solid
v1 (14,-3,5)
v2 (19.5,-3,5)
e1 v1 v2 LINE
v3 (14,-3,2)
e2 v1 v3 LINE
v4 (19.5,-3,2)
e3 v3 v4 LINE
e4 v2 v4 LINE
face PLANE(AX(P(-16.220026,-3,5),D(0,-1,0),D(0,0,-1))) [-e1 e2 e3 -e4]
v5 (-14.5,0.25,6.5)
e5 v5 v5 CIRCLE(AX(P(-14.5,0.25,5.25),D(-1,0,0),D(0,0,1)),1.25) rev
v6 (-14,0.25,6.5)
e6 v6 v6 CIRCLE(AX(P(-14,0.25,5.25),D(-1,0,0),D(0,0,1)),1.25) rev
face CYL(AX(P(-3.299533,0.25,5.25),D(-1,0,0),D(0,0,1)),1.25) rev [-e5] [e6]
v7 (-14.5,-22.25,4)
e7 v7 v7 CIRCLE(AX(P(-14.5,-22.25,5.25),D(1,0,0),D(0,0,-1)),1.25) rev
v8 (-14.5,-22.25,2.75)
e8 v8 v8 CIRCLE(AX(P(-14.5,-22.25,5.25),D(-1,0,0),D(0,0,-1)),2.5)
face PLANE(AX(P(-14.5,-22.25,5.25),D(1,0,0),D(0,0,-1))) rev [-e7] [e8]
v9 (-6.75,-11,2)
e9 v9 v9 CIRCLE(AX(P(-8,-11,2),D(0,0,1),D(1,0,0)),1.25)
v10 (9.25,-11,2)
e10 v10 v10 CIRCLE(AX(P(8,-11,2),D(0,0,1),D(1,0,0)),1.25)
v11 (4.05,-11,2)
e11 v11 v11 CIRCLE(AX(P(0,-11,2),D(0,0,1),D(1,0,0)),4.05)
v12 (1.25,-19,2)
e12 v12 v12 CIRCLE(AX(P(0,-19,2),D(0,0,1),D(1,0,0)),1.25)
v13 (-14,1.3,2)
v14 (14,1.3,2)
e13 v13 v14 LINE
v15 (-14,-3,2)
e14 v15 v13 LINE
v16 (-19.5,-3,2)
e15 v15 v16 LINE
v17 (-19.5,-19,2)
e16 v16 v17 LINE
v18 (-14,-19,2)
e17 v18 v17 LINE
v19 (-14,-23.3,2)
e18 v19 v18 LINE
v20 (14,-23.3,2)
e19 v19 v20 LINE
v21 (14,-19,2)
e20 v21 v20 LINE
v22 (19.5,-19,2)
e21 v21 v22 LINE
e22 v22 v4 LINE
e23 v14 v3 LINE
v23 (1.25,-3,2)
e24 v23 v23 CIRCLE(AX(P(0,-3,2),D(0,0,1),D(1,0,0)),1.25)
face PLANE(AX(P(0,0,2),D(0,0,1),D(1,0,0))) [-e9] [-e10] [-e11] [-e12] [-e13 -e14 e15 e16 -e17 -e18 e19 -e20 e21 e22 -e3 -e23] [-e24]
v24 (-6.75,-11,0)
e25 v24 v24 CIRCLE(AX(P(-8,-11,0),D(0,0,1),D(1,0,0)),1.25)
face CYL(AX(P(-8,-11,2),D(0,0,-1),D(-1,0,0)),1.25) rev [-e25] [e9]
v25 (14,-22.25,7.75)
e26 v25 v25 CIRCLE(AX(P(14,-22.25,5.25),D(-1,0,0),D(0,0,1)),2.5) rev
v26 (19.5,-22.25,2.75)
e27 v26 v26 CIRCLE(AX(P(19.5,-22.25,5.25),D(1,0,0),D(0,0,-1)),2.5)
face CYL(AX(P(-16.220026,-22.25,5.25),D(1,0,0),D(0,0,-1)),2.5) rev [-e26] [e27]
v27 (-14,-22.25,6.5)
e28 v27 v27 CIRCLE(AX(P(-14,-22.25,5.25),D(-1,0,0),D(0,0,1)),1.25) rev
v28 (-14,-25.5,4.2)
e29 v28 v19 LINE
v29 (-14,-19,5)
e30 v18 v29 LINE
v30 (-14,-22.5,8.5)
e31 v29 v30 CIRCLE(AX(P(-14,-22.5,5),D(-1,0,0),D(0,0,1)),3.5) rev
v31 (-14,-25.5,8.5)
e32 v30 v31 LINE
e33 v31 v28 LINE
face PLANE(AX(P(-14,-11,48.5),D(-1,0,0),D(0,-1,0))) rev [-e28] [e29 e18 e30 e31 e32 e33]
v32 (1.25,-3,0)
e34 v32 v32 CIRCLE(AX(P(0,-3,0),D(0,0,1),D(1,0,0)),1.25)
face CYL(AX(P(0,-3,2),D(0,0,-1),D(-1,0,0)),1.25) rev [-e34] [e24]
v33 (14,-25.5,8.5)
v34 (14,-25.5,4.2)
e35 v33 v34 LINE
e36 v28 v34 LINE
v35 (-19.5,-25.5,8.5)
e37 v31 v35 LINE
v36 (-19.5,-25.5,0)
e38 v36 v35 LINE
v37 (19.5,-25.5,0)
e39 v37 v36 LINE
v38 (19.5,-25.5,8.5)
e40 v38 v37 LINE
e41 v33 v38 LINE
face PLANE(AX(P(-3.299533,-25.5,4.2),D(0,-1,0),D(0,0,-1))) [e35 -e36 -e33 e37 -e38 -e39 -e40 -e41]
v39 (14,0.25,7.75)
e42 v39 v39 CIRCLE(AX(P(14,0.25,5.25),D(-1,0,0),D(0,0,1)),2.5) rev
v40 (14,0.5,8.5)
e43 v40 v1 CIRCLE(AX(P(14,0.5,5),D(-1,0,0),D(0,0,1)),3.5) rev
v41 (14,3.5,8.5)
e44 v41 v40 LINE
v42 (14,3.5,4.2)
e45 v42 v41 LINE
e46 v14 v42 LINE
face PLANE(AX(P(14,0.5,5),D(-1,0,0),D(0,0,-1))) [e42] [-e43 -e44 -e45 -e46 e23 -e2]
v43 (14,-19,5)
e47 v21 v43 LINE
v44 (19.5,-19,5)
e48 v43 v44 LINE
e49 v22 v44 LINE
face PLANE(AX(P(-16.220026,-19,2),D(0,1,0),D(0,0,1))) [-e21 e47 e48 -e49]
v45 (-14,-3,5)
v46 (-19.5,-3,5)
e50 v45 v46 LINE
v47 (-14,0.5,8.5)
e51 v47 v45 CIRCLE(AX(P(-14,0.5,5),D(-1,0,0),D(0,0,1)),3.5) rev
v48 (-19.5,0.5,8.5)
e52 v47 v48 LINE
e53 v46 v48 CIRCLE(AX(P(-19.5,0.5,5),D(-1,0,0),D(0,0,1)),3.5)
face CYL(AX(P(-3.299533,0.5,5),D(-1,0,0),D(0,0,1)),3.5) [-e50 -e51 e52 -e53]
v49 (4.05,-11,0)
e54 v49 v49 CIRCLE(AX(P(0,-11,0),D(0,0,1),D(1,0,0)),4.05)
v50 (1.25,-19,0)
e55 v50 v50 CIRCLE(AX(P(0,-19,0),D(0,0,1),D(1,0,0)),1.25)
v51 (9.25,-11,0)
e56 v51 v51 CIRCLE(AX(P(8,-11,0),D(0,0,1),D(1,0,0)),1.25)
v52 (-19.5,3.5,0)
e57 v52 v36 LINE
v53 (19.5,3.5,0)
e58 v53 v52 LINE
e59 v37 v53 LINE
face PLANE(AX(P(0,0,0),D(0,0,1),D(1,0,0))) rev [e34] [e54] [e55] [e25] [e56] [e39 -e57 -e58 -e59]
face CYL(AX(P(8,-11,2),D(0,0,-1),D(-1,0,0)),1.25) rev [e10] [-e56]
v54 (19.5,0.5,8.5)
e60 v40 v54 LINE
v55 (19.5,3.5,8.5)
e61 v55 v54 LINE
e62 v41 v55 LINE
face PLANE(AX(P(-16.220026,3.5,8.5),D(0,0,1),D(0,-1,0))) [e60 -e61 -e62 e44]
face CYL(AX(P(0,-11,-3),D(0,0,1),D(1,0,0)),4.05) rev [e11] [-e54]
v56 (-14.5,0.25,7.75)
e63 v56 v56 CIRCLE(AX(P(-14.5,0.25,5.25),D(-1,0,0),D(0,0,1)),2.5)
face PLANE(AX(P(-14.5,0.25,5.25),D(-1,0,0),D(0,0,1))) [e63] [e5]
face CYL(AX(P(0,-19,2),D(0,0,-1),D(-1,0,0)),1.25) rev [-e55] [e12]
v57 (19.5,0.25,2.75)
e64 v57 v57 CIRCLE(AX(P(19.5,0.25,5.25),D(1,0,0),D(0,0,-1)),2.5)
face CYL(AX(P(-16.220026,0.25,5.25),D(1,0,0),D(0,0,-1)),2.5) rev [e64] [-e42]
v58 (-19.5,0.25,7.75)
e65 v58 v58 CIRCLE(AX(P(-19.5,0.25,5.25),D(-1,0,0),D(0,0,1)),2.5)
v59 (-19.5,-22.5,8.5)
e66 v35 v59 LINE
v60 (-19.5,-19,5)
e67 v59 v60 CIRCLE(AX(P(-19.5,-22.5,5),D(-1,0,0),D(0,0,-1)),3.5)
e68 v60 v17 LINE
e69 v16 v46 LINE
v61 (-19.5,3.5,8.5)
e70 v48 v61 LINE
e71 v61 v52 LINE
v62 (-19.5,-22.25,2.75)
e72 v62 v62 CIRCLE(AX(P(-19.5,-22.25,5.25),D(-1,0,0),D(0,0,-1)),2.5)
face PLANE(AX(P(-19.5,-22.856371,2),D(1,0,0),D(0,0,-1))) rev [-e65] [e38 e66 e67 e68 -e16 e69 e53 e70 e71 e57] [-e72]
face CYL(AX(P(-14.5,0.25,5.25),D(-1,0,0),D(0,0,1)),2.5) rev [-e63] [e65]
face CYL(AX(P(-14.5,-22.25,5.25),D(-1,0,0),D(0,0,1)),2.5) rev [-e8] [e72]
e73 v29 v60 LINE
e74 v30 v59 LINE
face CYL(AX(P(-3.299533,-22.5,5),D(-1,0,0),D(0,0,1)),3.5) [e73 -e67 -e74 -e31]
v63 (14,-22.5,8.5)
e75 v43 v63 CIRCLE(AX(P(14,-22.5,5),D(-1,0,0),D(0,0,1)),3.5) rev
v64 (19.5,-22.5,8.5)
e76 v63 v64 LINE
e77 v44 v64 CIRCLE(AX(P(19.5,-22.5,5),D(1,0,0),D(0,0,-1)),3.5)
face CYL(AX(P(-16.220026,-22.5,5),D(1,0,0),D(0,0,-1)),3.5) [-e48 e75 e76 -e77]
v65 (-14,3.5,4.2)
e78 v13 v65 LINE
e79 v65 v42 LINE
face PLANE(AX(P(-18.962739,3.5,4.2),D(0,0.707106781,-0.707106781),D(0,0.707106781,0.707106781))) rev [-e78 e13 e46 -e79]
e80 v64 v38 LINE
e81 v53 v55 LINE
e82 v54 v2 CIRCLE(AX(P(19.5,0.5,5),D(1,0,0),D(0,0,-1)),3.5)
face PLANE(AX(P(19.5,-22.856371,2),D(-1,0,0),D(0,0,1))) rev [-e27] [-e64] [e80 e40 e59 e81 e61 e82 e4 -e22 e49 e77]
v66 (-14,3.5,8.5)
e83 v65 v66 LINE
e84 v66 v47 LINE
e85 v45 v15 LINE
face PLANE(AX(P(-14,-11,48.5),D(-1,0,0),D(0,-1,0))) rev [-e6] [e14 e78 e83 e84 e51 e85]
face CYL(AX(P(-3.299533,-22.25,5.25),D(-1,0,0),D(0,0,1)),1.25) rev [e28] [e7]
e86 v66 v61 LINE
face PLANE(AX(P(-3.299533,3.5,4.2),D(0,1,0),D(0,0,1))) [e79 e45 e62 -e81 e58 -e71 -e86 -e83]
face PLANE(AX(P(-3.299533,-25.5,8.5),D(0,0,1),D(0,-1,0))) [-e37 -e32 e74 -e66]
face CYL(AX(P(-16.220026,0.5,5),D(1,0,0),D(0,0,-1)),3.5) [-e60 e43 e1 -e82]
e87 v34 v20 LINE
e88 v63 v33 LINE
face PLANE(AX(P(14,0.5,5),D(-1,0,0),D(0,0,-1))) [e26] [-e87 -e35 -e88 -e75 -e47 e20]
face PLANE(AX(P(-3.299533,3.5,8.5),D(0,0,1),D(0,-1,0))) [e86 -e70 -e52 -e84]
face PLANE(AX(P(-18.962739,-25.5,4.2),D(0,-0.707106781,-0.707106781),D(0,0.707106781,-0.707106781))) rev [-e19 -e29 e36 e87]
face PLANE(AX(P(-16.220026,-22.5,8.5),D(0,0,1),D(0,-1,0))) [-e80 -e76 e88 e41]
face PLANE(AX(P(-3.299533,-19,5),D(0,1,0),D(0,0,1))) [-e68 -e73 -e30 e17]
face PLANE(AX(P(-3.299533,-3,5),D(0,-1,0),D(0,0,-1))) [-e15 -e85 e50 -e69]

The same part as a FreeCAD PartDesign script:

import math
import FreeCAD as App
import Part
import Sketcher
from FreeCAD import Vector


def add_polygon(sketch, points):
    """Adds a closed chain of lines whose ends are joined by coincident constraints."""
    first, n = sketch.GeometryCount, len(points)
    for a, b in zip(points, points[1:] + points[:1]):
        sketch.addGeometry(Part.LineSegment(App.Vector(*a, 0), App.Vector(*b, 0)), False)
    for i in range(n):
        sketch.addConstraint(Sketcher.Constraint("Coincident", first + i, 2, first + (i + 1) % n, 1))

doc = App.newDocument("Part")
body = doc.addObject("PartDesign::Body", "Body")

sketch1 = body.newObject("Sketcher::SketchObject", "Sketch")
sketch1.AttachmentSupport = (doc.getObject("XY_Plane"), [""])
sketch1.MapMode = "FlatFace"
add_polygon(sketch1, [(-19.5, 0.9), (-19.5, -22.9), (19.5, -22.9), (19.5, 0.9)])
sketch1.addGeometry(Part.Circle(Vector(0, -19, 0), Vector(0, 0, 1), 1.2), False)
sketch1.addGeometry(Part.Circle(Vector(-8, -11, 0), Vector(0, 0, 1), 1.2), False)
sketch1.addGeometry(Part.Circle(Vector(8, -11, 0), Vector(0, 0, 1), 1.2), False)
sketch1.addGeometry(Part.Circle(Vector(0, -3, 0), Vector(0, 0, 1), 1.2), False)
sketch1.addConstraint(Sketcher.Constraint("Vertical", 0))
sketch1.addConstraint(Sketcher.Constraint("Horizontal", 1))
sketch1.addConstraint(Sketcher.Constraint("Vertical", 2))
sketch1.addConstraint(Sketcher.Constraint("Horizontal", 3))
sketch1.addConstraint(Sketcher.Constraint("Equal", 4, 5))
sketch1.addConstraint(Sketcher.Constraint("Equal", 5, 6))
sketch1.addConstraint(Sketcher.Constraint("Equal", 6, 7))
sketch1.addConstraint(Sketcher.Constraint("Symmetric", 5, 3, 6, 3, -2))
sketch1.addConstraint(Sketcher.Constraint("PointOnObject", 4, 3, -2))
sketch1.addConstraint(Sketcher.Constraint("PointOnObject", 7, 3, -2))
sketch1.addConstraint(Sketcher.Constraint("Diameter", 4, 2.5))
sketch1.addConstraint(Sketcher.Constraint("DistanceX", 1, 1, 1, 2, 39.0))
sketch1.addConstraint(Sketcher.Constraint("DistanceY", 4, 3, -1, 1, 19.0))
sketch1.addConstraint(Sketcher.Constraint("DistanceX", 5, 3, -1, 1, 8.0))
sketch1.addConstraint(Sketcher.Constraint("DistanceY", 5, 3, -1, 1, 11.0))
sketch1.addConstraint(Sketcher.Constraint("DistanceY", 7, 3, -1, 1, 3.0))
sketch1.addConstraint(Sketcher.Constraint("DistanceX", 0, 2, -1, 1, 19.5))
sketch1.addConstraint(Sketcher.Constraint("DistanceY", 0, 2, 0, 1, 23.712742))
sketch1.addConstraint(Sketcher.Constraint("DistanceY", 0, 2, -1, 1, 22.856371))
pad1 = body.newObject("PartDesign::Pad", "Pad")
pad1.Profile = sketch1
pad1.Length = 2

sketch2 = body.newObject("Sketcher::SketchObject", "Sketch001")
sketch2.AttachmentSupport = (doc.getObject("XY_Plane"), [""])
sketch2.MapMode = "FlatFace"
sketch2.AttachmentOffset = App.Placement(Vector(0, 0, 2), App.Rotation())
sketch2.addGeometry(Part.Circle(Vector(0, -11, 0), Vector(0, 0, 1), 4), False)
sketch2.addConstraint(Sketcher.Constraint("PointOnObject", 0, 3, -2))
sketch2.addConstraint(Sketcher.Constraint("Diameter", 0, 8.1))
sketch2.addConstraint(Sketcher.Constraint("DistanceY", 0, 3, -1, 1, 11.0))
pocket1 = body.newObject("PartDesign::Pocket", "Pocket")
pocket1.Profile = sketch2
pocket1.Length = 5

sketch3 = body.newObject("Sketcher::SketchObject", "Sketch002")
sketch3.AttachmentSupport = (doc.getObject("YZ_Plane"), [""])
sketch3.MapMode = "FlatFace"
sketch3.AttachmentOffset = App.Placement(Vector(0, 0, -19.5), App.Rotation())
sketch3.addGeometry(Part.LineSegment(Vector(0.5, 8.5, 0), Vector(3.5, 8.5, 0)), False)
sketch3.addGeometry(Part.LineSegment(Vector(3.5, 8.5, 0), Vector(3.5, 0, 0)), False)
sketch3.addGeometry(Part.LineSegment(Vector(3.5, 0, 0), Vector(0.9, 0, 0)), False)
sketch3.addGeometry(Part.LineSegment(Vector(0.9, 0, 0), Vector(0.9, 2, 0)), False)
sketch3.addGeometry(Part.LineSegment(Vector(0.9, 2, 0), Vector(-3, 2, 0)), False)
sketch3.addGeometry(Part.LineSegment(Vector(-3, 2, 0), Vector(-3, 5, 0)), False)
sketch3.addGeometry(Part.ArcOfCircle(Part.Circle(Vector(0.5, 5, 0), Vector(0, 0, 1), 3.5), math.radians(90), math.radians(180)), False)
sketch3.addGeometry(Part.Circle(Vector(0.2, 5.2, 0), Vector(0, 0, 1), 1.2), False)
sketch3.addGeometry(Part.LineSegment(Vector(-19, 5, 0), Vector(-19, 2, 0)), False)
sketch3.addGeometry(Part.LineSegment(Vector(-19, 2, 0), Vector(-22.9, 2, 0)), False)
sketch3.addGeometry(Part.LineSegment(Vector(-22.9, 2, 0), Vector(-22.9, 0, 0)), False)
sketch3.addGeometry(Part.LineSegment(Vector(-22.9, 0, 0), Vector(-25.5, 0, 0)), False)
sketch3.addGeometry(Part.LineSegment(Vector(-25.5, 0, 0), Vector(-25.5, 8.5, 0)), False)
sketch3.addGeometry(Part.LineSegment(Vector(-25.5, 8.5, 0), Vector(-22.5, 8.5, 0)), False)
sketch3.addGeometry(Part.ArcOfCircle(Part.Circle(Vector(-22.5, 5, 0), Vector(0, 0, 1), 3.5), math.radians(0), math.radians(90)), False)
sketch3.addGeometry(Part.Circle(Vector(-22.2, 5.2, 0), Vector(0, 0, 1), 1.2), False)
sketch3.addConstraint(Sketcher.Constraint("Coincident", 0, 2, 1, 1))
sketch3.addConstraint(Sketcher.Constraint("Coincident", 1, 2, 2, 1))
sketch3.addConstraint(Sketcher.Constraint("Coincident", 2, 2, 3, 1))
sketch3.addConstraint(Sketcher.Constraint("Coincident", 3, 2, 4, 1))
sketch3.addConstraint(Sketcher.Constraint("Coincident", 4, 2, 5, 1))
sketch3.addConstraint(Sketcher.Constraint("Tangent", 5, 2, 6, 2))
sketch3.addConstraint(Sketcher.Constraint("Tangent", 6, 1, 0, 1))
sketch3.addConstraint(Sketcher.Constraint("Coincident", 8, 2, 9, 1))
sketch3.addConstraint(Sketcher.Constraint("Coincident", 9, 2, 10, 1))
sketch3.addConstraint(Sketcher.Constraint("Coincident", 10, 2, 11, 1))
sketch3.addConstraint(Sketcher.Constraint("Coincident", 11, 2, 12, 1))
sketch3.addConstraint(Sketcher.Constraint("Coincident", 12, 2, 13, 1))
sketch3.addConstraint(Sketcher.Constraint("Tangent", 13, 2, 14, 2))
sketch3.addConstraint(Sketcher.Constraint("Tangent", 14, 1, 8, 1))
sketch3.addConstraint(Sketcher.Constraint("Horizontal", 0))
sketch3.addConstraint(Sketcher.Constraint("Vertical", 1))
sketch3.addConstraint(Sketcher.Constraint("Horizontal", 2))
sketch3.addConstraint(Sketcher.Constraint("Vertical", 3))
sketch3.addConstraint(Sketcher.Constraint("Horizontal", 4))
sketch3.addConstraint(Sketcher.Constraint("Vertical", 5))
sketch3.addConstraint(Sketcher.Constraint("Vertical", 8))
sketch3.addConstraint(Sketcher.Constraint("Horizontal", 9))
sketch3.addConstraint(Sketcher.Constraint("Vertical", 10))
sketch3.addConstraint(Sketcher.Constraint("Horizontal", 11))
sketch3.addConstraint(Sketcher.Constraint("Vertical", 12))
sketch3.addConstraint(Sketcher.Constraint("Horizontal", 13))
sketch3.addConstraint(Sketcher.Constraint("Equal", 6, 14))
sketch3.addConstraint(Sketcher.Constraint("Equal", 7, 15))
sketch3.addConstraint(Sketcher.Constraint("PointOnObject", 1, 2, -1))
sketch3.addConstraint(Sketcher.Constraint("PointOnObject", 10, 2, -1))
sketch3.addConstraint(Sketcher.Constraint("Horizontal", 6, 3, 14, 3))
sketch3.addConstraint(Sketcher.Constraint("Horizontal", 7, 3, 15, 3))
sketch3.addConstraint(Sketcher.Constraint("Horizontal", 4, 2, 8, 2))
sketch3.addConstraint(Sketcher.Constraint("Equal", 4, 9))
sketch3.addConstraint(Sketcher.Constraint("Equal", 2, 11))
sketch3.addConstraint(Sketcher.Constraint("Equal", 13, 5))
sketch3.addConstraint(Sketcher.Constraint("Diameter", 7, 2.5))
sketch3.addConstraint(Sketcher.Constraint("Radius", 6, 3.5))
sketch3.addConstraint(Sketcher.Constraint("DistanceX", 0, 1, 0, 2, 3.0))
sketch3.addConstraint(Sketcher.Constraint("DistanceY", 3, 1, 3, 2, 2.0))
sketch3.addConstraint(Sketcher.Constraint("DistanceX", 4, 2, -1, 1, 3.0))
sketch3.addConstraint(Sketcher.Constraint("DistanceX", 8, 2, -1, 1, 19.0))
sketch3.addConstraint(Sketcher.Constraint("DistanceX", 15, 3, 7, 3, 22.5))
sketch3.addConstraint(Sketcher.Constraint("DistanceX", -1, 1, 7, 3, 0.25))
sketch3.addConstraint(Sketcher.Constraint("DistanceY", -1, 1, 7, 3, 5.25))
sketch3.addConstraint(Sketcher.Constraint("DistanceX", 2, 2, 2, 1, 2.643629))
pad2 = body.newObject("PartDesign::Pad", "Pad001")
pad2.Profile = sketch3
pad2.Length = 5.5

sketch4 = body.newObject("Sketcher::SketchObject", "Sketch003")
sketch4.AttachmentSupport = (doc.getObject("YZ_Plane"), [""])
sketch4.MapMode = "FlatFace"
sketch4.AttachmentOffset = App.Placement(Vector(0, 0, -19.5), App.Rotation())
sketch4.addGeometry(Part.Circle(Vector(0.2, 5.2, 0), Vector(0, 0, 1), 2.5), False)
sketch4.addGeometry(Part.Circle(Vector(-22.2, 5.2, 0), Vector(0, 0, 1), 2.5), False)
sketch4.addConstraint(Sketcher.Constraint("Equal", 0, 1))
sketch4.addConstraint(Sketcher.Constraint("Horizontal", 0, 3, 1, 3))
sketch4.addConstraint(Sketcher.Constraint("Diameter", 0, 5.0))
sketch4.addConstraint(Sketcher.Constraint("DistanceX", 1, 3, 0, 3, 22.5))
sketch4.addConstraint(Sketcher.Constraint("DistanceX", -1, 1, 0, 3, 0.25))
sketch4.addConstraint(Sketcher.Constraint("DistanceY", -1, 1, 0, 3, 5.25))
pocket2 = body.newObject("PartDesign::Pocket", "Pocket001")
pocket2.Profile = sketch4
pocket2.Length = 5
pocket2.Reversed = True

sketch5 = body.newObject("Sketcher::SketchObject", "Sketch004")
sketch5.AttachmentSupport = (doc.getObject("YZ_Plane"), [""])
sketch5.MapMode = "FlatFace"
sketch5.AttachmentOffset = App.Placement(Vector(0, 0, 14), App.Rotation())
sketch5.addGeometry(Part.ArcOfCircle(Part.Circle(Vector(0.5, 5, 0), Vector(0, 0, 1), 3.5), math.radians(90), math.radians(180)), False)
sketch5.addGeometry(Part.LineSegment(Vector(-3, 5, 0), Vector(-3, 2, 0)), False)
sketch5.addGeometry(Part.LineSegment(Vector(-3, 2, 0), Vector(-19, 2, 0)), False)
sketch5.addGeometry(Part.LineSegment(Vector(-19, 2, 0), Vector(-19, 5, 0)), False)
sketch5.addGeometry(Part.ArcOfCircle(Part.Circle(Vector(-22.5, 5, 0), Vector(0, 0, 1), 3.5), math.radians(0), math.radians(90)), False)
sketch5.addGeometry(Part.LineSegment(Vector(-22.5, 8.5, 0), Vector(-25.5, 8.5, 0)), False)
sketch5.addGeometry(Part.LineSegment(Vector(-25.5, 8.5, 0), Vector(-25.5, 0, 0)), False)
sketch5.addGeometry(Part.LineSegment(Vector(-25.5, 0, 0), Vector(3.5, 0, 0)), False)
sketch5.addGeometry(Part.LineSegment(Vector(3.5, 0, 0), Vector(3.5, 8.5, 0)), False)
sketch5.addGeometry(Part.LineSegment(Vector(3.5, 8.5, 0), Vector(0.5, 8.5, 0)), False)
sketch5.addGeometry(Part.Circle(Vector(-22.2, 5.2, 0), Vector(0, 0, 1), 2.5), False)
sketch5.addGeometry(Part.Circle(Vector(0.2, 5.2, 0), Vector(0, 0, 1), 2.5), False)
sketch5.addConstraint(Sketcher.Constraint("Tangent", 0, 2, 1, 1))
sketch5.addConstraint(Sketcher.Constraint("Coincident", 1, 2, 2, 1))
sketch5.addConstraint(Sketcher.Constraint("Coincident", 2, 2, 3, 1))
sketch5.addConstraint(Sketcher.Constraint("Tangent", 3, 2, 4, 1))
sketch5.addConstraint(Sketcher.Constraint("Tangent", 4, 2, 5, 1))
sketch5.addConstraint(Sketcher.Constraint("Coincident", 5, 2, 6, 1))
sketch5.addConstraint(Sketcher.Constraint("Coincident", 6, 2, 7, 1))
sketch5.addConstraint(Sketcher.Constraint("Coincident", 7, 2, 8, 1))
sketch5.addConstraint(Sketcher.Constraint("Coincident", 8, 2, 9, 1))
sketch5.addConstraint(Sketcher.Constraint("Tangent", 9, 2, 0, 1))
sketch5.addConstraint(Sketcher.Constraint("Vertical", 1))
sketch5.addConstraint(Sketcher.Constraint("Horizontal", 2))
sketch5.addConstraint(Sketcher.Constraint("Vertical", 3))
sketch5.addConstraint(Sketcher.Constraint("Horizontal", 5))
sketch5.addConstraint(Sketcher.Constraint("Vertical", 6))
sketch5.addConstraint(Sketcher.Constraint("Horizontal", 7))
sketch5.addConstraint(Sketcher.Constraint("Vertical", 8))
sketch5.addConstraint(Sketcher.Constraint("Horizontal", 9))
sketch5.addConstraint(Sketcher.Constraint("Equal", 0, 4))
sketch5.addConstraint(Sketcher.Constraint("Equal", 10, 11))
sketch5.addConstraint(Sketcher.Constraint("PointOnObject", 6, 2, -1))
sketch5.addConstraint(Sketcher.Constraint("Horizontal", 0, 3, 4, 3))
sketch5.addConstraint(Sketcher.Constraint("Horizontal", 10, 3, 11, 3))
sketch5.addConstraint(Sketcher.Constraint("Equal", 5, 9))
sketch5.addConstraint(Sketcher.Constraint("Equal", 9, 1))
sketch5.addConstraint(Sketcher.Constraint("Diameter", 10, 5.0))
sketch5.addConstraint(Sketcher.Constraint("Radius", 0, 3.5))
sketch5.addConstraint(Sketcher.Constraint("DistanceX", 2, 2, 2, 1, 16.0))
sketch5.addConstraint(Sketcher.Constraint("DistanceX", 5, 2, 5, 1, 3.0))
sketch5.addConstraint(Sketcher.Constraint("DistanceY", 6, 2, 6, 1, 8.5))
sketch5.addConstraint(Sketcher.Constraint("DistanceX", 0, 2, -1, 1, 3.0))
sketch5.addConstraint(Sketcher.Constraint("DistanceX", 10, 3, 11, 3, 22.5))
sketch5.addConstraint(Sketcher.Constraint("DistanceX", 10, 3, -1, 1, 22.25))
sketch5.addConstraint(Sketcher.Constraint("DistanceY", -1, 1, 10, 3, 5.25))
pad3 = body.newObject("PartDesign::Pad", "Pad002")
pad3.Profile = sketch5
pad3.Length = 5.5

sketch6 = body.newObject("Sketcher::SketchObject", "Sketch005")
sketch6.AttachmentSupport = (doc.getObject("YZ_Plane"), [""])
sketch6.MapMode = "FlatFace"
sketch6.AttachmentOffset = App.Placement(Vector(0, 0, 14), App.Rotation())
add_polygon(sketch6, [(3.5, 4.2), (3.5, 0), (0.86, 0), (0.86, 2), (1.3, 2)])
add_polygon(sketch6, [(-22.86, 2), (-22.86, 0), (-25.5, 0), (-25.5, 4.2), (-23.3, 2)])
sketch6.addConstraint(Sketcher.Constraint("Vertical", 0))
sketch6.addConstraint(Sketcher.Constraint("Horizontal", 1))
sketch6.addConstraint(Sketcher.Constraint("Vertical", 2))
sketch6.addConstraint(Sketcher.Constraint("Horizontal", 3))
sketch6.addConstraint(Sketcher.Constraint("Vertical", 5))
sketch6.addConstraint(Sketcher.Constraint("Horizontal", 6))
sketch6.addConstraint(Sketcher.Constraint("Vertical", 7))
sketch6.addConstraint(Sketcher.Constraint("Horizontal", 9))
sketch6.addConstraint(Sketcher.Constraint("PointOnObject", 0, 2, -1))
sketch6.addConstraint(Sketcher.Constraint("PointOnObject", 5, 2, -1))
sketch6.addConstraint(Sketcher.Constraint("Perpendicular", 4, 8))
sketch6.addConstraint(Sketcher.Constraint("Horizontal", 4, 2, 7, 2))
sketch6.addConstraint(Sketcher.Constraint("Horizontal", 3, 2, 8, 2))
sketch6.addConstraint(Sketcher.Constraint("Equal", 1, 6))
sketch6.addConstraint(Sketcher.Constraint("Equal", 3, 9))
sketch6.addConstraint(Sketcher.Constraint("DistanceY", 2, 1, 2, 2, 2.0))
sketch6.addConstraint(Sketcher.Constraint("DistanceY", 0, 2, 0, 1, 4.2))
sketch6.addConstraint(Sketcher.Constraint("DistanceX", 6, 2, 0, 2, 29.0))
sketch6.addConstraint(Sketcher.Constraint("DistanceX", -1, 1, 0, 2, 3.5))
sketch6.addConstraint(Sketcher.Constraint("DistanceX", 1, 2, 1, 1, 2.643629))
pad4 = body.newObject("PartDesign::Pad", "Pad003")
pad4.Profile = sketch6
pad4.Length = 28
pad4.Reversed = True

doc.recompute()
